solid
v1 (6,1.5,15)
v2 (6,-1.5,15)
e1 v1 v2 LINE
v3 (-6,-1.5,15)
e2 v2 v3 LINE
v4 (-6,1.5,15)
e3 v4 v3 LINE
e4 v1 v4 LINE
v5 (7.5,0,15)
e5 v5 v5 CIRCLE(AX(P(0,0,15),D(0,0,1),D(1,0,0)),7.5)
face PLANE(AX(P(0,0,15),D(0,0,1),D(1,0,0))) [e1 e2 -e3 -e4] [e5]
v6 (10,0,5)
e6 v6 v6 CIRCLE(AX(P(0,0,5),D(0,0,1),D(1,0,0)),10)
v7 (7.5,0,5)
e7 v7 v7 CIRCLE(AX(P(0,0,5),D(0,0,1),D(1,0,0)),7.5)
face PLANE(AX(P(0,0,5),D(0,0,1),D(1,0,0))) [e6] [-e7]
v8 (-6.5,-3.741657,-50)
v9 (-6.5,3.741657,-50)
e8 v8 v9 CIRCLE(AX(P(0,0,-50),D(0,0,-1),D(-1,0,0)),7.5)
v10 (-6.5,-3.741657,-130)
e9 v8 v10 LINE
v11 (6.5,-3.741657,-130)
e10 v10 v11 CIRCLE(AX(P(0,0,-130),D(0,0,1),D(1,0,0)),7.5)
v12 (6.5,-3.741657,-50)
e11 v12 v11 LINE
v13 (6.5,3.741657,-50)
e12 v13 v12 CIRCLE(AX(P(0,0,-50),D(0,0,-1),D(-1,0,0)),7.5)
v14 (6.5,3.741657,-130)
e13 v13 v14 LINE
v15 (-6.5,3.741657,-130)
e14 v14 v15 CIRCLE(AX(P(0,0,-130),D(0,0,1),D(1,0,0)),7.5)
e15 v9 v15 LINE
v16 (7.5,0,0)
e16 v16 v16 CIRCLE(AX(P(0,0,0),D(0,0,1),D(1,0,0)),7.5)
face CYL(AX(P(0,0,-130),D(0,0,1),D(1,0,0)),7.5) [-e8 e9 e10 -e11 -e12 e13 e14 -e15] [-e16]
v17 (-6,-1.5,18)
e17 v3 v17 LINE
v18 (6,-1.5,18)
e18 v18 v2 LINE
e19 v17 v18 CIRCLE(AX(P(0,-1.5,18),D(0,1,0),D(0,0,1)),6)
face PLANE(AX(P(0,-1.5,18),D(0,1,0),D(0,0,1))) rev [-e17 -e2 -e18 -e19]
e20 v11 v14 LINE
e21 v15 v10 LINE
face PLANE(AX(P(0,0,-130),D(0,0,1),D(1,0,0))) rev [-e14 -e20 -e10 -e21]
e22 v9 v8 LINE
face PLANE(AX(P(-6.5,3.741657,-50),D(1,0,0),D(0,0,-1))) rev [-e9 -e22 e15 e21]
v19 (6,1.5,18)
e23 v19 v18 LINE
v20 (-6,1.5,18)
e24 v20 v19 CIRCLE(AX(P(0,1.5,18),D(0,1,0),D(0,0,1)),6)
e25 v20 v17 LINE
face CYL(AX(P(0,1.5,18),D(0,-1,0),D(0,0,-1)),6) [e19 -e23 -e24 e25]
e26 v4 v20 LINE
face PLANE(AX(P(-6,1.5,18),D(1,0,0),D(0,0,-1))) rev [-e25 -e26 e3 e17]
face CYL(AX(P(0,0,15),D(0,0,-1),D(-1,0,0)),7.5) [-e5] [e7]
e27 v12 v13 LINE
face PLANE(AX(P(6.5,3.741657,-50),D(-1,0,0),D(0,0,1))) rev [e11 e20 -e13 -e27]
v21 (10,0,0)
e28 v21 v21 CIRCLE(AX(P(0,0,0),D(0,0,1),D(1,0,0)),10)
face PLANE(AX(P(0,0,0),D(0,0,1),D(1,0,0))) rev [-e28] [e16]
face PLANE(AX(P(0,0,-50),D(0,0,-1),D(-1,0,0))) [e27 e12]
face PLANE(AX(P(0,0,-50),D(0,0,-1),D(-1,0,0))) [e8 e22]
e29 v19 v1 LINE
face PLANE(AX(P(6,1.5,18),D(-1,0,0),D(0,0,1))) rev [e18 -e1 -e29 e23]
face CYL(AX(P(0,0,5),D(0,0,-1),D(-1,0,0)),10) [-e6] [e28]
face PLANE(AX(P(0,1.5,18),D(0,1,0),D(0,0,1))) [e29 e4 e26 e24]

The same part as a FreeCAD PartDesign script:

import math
import FreeCAD as App
import Part
import Sketcher
from FreeCAD import Vector

doc = App.newDocument("Part")
body = doc.addObject("PartDesign::Body", "Body")

# Sketch on XY plane
sketch1 = body.newObject("Sketcher::SketchObject", "Sketch")
sketch1.AttachmentSupport = (doc.getObject("XY_Plane"), [""])
sketch1.MapMode = "FlatFace"
sketch1.addGeometry(Part.Circle(Vector(0, 0, 0), Vector(0, 0, 1), 8), False)
sketch1.addConstraint(Sketcher.Constraint("Coincident", 0, 3, -1, 1))
sketch1.addConstraint(Sketcher.Constraint("Diameter", 0, 15.0))
pad1 = body.newObject("PartDesign::Pad", "Pad")
pad1.Profile = sketch1
pad1.Length = 130
pad1.Reversed = True

# Sketch on XY plane
sketch2 = body.newObject("Sketcher::SketchObject", "Sketch001")
sketch2.AttachmentSupport = (doc.getObject("XY_Plane"), [""])
sketch2.MapMode = "FlatFace"
sketch2.addGeometry(Part.Circle(Vector(0, 0, 0), Vector(0, 0, 1), 10), False)
sketch2.addConstraint(Sketcher.Constraint("Coincident", 0, 3, -1, 1))
sketch2.addConstraint(Sketcher.Constraint("Diameter", 0, 20.0))
pad2 = body.newObject("PartDesign::Pad", "Pad001")
pad2.Profile = sketch2
pad2.Length = 5

# Sketch on XY plane
sketch3 = body.newObject("Sketcher::SketchObject", "Sketch002")
sketch3.AttachmentSupport = (doc.getObject("XY_Plane"), [""])
sketch3.MapMode = "FlatFace"
sketch3.AttachmentOffset = App.Placement(Vector(0, 0, 15), App.Rotation())
sketch3.addGeometry(Part.Circle(Vector(0, 0, 0), Vector(0, 0, 1), 8), False)
sketch3.addConstraint(Sketcher.Constraint("Coincident", 0, 3, -1, 1))
sketch3.addConstraint(Sketcher.Constraint("Diameter", 0, 15.0))
pad3 = body.newObject("PartDesign::Pad", "Pad002")
pad3.Profile = sketch3
pad3.Length = 10
pad3.Reversed = True

# Sketch on XY plane
sketch4 = body.newObject("Sketcher::SketchObject", "Sketch003")
sketch4.AttachmentSupport = (doc.getObject("XY_Plane"), [""])
sketch4.MapMode = "FlatFace"
sketch4.AttachmentOffset = App.Placement(Vector(0, 0, -50), App.Rotation())
sketch4.addGeometry(Part.LineSegment(Vector(6, -4, 0), Vector(6, 4, 0)), False)
sketch4.addGeometry(Part.ArcOfCircle(Part.Circle(Vector(0, 0, 0), Vector(0, 0, 1), 8), math.radians(-30), math.radians(30)), False)
sketch4.addGeometry(Part.LineSegment(Vector(-6, 4, 0), Vector(-6, -4, 0)), False)
sketch4.addGeometry(Part.ArcOfCircle(Part.Circle(Vector(0, 0, 0), Vector(0, 0, 1), 8), math.radians(150), math.radians(210)), False)
sketch4.addConstraint(Sketcher.Constraint("Coincident", 0, 1, 1, 1))
sketch4.addConstraint(Sketcher.Constraint("Coincident", 1, 2, 0, 2))
sketch4.addConstraint(Sketcher.Constraint("Coincident", 2, 1, 3, 1))
sketch4.addConstraint(Sketcher.Constraint("Coincident", 3, 2, 2, 2))
sketch4.addConstraint(Sketcher.Constraint("Vertical", 0))
sketch4.addConstraint(Sketcher.Constraint("Vertical", 2))
sketch4.addConstraint(Sketcher.Constraint("Coincident", 1, 3, -1, 1))
sketch4.addConstraint(Sketcher.Constraint("Coincident", 3, 3, -1, 1))
sketch4.addConstraint(Sketcher.Constraint("Equal", 1, 3))
sketch4.addConstraint(Sketcher.Constraint("Horizontal", 1, 2, 2, 1))
sketch4.addConstraint(Sketcher.Constraint("Radius", 1, 7.5))
sketch4.addConstraint(Sketcher.Constraint("DistanceX", 2, 1, 1, 2, 13.0))
pocket1 = body.newObject("PartDesign::Pocket", "Pocket")
pocket1.Profile = sketch4
pocket1.Length = 80

# Sketch on XZ plane
sketch5 = body.newObject("Sketcher::SketchObject", "Sketch004")
sketch5.AttachmentSupport = (doc.getObject("XZ_Plane"), [""])
sketch5.MapMode = "FlatFace"
sketch5.addGeometry(Part.LineSegment(Vector(-6, 15, 0), Vector(-6, 18, 0)), False)
sketch5.addGeometry(Part.ArcOfCircle(Part.Circle(Vector(0, 18, 0), Vector(0, 0, 1), 6), math.radians(0), math.radians(180)), False)
sketch5.addGeometry(Part.LineSegment(Vector(6, 18, 0), Vector(6, 15, 0)), False)
sketch5.addGeometry(Part.LineSegment(Vector(6, 15, 0), Vector(-6, 15, 0)), False)
sketch5.addConstraint(Sketcher.Constraint("Tangent", 0, 2, 1, 2))
sketch5.addConstraint(Sketcher.Constraint("Tangent", 1, 1, 2, 1))
sketch5.addConstraint(Sketcher.Constraint("Coincident", 2, 2, 3, 1))
sketch5.addConstraint(Sketcher.Constraint("Coincident", 3, 2, 0, 1))
sketch5.addConstraint(Sketcher.Constraint("Vertical", 0))
sketch5.addConstraint(Sketcher.Constraint("Vertical", 2))
sketch5.addConstraint(Sketcher.Constraint("Horizontal", 3))
sketch5.addConstraint(Sketcher.Constraint("PointOnObject", 1, 3, -2))
sketch5.addConstraint(Sketcher.Constraint("Radius", 1, 6.0))
sketch5.addConstraint(Sketcher.Constraint("DistanceY", 0, 1, 0, 2, 3.0))
sketch5.addConstraint(Sketcher.Constraint("DistanceY", -1, 1, 1, 3, 18.0))
pad4 = body.newObject("PartDesign::Pad", "Pad003")
pad4.Profile = sketch5
pad4.Length = 3
pad4.Midplane = True

doc.recompute()
